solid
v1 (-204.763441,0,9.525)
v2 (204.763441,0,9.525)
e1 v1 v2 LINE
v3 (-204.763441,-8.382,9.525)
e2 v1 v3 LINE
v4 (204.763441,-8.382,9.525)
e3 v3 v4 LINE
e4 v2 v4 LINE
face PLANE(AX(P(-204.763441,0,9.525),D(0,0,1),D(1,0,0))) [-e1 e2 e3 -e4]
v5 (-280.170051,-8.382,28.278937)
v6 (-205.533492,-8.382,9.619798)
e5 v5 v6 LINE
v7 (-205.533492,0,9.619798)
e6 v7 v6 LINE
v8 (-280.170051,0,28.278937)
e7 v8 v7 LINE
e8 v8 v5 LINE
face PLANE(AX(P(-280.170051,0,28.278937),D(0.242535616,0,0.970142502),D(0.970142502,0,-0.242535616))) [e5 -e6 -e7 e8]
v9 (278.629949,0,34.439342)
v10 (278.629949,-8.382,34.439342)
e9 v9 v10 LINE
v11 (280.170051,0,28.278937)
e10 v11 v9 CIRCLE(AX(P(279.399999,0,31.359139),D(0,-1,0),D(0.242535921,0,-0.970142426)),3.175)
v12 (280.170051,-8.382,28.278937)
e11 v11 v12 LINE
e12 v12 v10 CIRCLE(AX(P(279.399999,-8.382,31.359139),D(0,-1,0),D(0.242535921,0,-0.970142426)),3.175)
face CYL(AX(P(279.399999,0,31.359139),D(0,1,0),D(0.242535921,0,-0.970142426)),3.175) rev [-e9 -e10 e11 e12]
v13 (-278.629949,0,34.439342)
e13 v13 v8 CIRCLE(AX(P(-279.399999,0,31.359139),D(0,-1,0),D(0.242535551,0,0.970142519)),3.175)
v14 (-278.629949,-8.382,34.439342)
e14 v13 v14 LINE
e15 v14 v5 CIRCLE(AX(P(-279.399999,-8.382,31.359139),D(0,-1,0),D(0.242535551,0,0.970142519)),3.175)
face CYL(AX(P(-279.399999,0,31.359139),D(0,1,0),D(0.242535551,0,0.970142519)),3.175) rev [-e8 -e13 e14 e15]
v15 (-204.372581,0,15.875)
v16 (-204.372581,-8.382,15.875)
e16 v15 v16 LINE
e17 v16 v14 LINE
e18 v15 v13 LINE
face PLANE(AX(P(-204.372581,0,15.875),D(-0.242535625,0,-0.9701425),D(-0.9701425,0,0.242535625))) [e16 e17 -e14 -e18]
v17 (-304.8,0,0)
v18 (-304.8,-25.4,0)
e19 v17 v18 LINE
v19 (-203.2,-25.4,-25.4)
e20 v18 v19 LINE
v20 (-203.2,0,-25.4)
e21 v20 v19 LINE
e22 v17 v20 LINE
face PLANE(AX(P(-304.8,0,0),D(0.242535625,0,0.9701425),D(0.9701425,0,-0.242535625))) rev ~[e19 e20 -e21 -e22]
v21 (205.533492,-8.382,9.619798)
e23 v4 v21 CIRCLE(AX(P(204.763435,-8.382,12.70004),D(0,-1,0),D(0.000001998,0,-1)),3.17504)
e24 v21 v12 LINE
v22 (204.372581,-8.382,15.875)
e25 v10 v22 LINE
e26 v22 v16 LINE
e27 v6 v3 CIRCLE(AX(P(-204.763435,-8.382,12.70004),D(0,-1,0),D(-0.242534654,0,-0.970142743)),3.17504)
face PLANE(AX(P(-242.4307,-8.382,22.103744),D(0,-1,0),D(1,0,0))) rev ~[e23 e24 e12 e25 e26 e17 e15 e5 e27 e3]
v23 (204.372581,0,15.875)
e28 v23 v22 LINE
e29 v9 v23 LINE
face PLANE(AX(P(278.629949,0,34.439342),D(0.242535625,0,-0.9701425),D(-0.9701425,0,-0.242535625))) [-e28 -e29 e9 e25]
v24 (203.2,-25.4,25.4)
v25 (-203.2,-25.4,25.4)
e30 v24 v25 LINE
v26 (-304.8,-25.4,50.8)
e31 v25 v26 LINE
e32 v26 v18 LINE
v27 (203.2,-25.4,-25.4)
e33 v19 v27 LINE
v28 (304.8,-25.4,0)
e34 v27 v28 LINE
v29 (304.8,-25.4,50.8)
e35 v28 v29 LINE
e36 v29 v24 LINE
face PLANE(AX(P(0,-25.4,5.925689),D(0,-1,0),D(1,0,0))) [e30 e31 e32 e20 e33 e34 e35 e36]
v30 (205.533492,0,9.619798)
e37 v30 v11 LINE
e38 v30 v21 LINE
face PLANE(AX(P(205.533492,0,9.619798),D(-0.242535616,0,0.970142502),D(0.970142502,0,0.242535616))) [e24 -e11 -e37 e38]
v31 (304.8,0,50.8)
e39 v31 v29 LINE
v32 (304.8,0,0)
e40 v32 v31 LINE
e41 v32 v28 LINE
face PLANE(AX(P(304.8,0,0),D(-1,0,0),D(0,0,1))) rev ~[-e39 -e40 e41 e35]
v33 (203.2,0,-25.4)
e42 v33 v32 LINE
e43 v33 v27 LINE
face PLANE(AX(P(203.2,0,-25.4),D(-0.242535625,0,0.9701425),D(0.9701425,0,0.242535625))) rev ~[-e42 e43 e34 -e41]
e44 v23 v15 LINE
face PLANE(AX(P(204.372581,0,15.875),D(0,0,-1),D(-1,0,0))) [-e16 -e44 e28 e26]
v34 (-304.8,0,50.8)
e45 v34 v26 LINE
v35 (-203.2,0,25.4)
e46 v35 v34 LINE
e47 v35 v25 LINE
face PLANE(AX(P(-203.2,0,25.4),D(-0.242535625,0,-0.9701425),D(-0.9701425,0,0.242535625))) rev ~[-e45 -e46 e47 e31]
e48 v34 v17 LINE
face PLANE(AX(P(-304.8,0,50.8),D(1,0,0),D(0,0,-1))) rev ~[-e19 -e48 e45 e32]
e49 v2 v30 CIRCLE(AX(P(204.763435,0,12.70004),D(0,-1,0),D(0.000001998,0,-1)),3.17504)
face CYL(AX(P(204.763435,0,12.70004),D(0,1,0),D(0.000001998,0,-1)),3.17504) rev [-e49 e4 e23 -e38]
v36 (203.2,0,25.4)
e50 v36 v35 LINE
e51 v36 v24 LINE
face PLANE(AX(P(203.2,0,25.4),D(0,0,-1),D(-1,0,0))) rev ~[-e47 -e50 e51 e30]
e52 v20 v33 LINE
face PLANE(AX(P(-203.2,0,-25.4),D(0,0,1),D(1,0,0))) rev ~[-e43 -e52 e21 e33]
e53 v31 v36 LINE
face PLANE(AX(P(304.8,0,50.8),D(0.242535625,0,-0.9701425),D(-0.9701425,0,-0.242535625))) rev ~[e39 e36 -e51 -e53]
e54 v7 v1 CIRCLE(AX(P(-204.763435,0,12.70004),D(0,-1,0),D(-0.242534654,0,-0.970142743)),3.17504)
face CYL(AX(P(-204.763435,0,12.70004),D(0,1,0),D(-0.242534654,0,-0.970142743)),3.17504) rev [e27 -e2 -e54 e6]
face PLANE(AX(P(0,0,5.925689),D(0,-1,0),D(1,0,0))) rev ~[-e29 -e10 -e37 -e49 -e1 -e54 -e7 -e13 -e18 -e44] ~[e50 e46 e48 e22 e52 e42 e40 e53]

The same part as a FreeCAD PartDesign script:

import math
import FreeCAD as App
import Part
import Sketcher
from FreeCAD import Vector
Q = App.Units.Quantity

doc = App.newDocument("Part")
params = doc.addObject("Spreadsheet::Sheet", "Params")
for row, (alias, value) in enumerate([
    ("sketch1_width", "16 in"),
    ("sketch1_height", "2 in"),
    ("pad1_length", "1 in"),
    ("sketch2_radius", "0.125 in"),
    ("sketch2_radius2", "0.125 in"),
    ("pocket1_length", "0.33 in"),
], start=1):
    params.set(f"A{row}", alias)
    params.set(f"B{row}", "=" + value)
    params.setAlias(f"B{row}", alias)

body = doc.addObject("PartDesign::Body", "Body")

# Sketch on XZ plane
sketch1 = doc.addObject("Sketcher::SketchObject", "Sketch")
body.addObject(sketch1)
sketch1.AttachmentSupport = (doc.XZ_Plane, [""])
sketch1.MapMode = "FlatFace"
sketch1.addGeometry([
    Part.LineSegment(Vector(305, 0, 0), Vector(305, 51, 0)),  # 0
    Part.LineSegment(Vector(305, 51, 0), Vector(203, 25, 0)),  # 1
    Part.LineSegment(Vector(203, 25, 0), Vector(-203, 25, 0)),  # 2
    Part.LineSegment(Vector(-203, 25, 0), Vector(-305, 51, 0)),  # 3
    Part.LineSegment(Vector(-305, 51, 0), Vector(-305, 0, 0)),  # 4
    Part.LineSegment(Vector(-305, 0, 0), Vector(-203, -25, 0)),  # 5
    Part.LineSegment(Vector(-203, -25, 0), Vector(203, -25, 0)),  # 6
    Part.LineSegment(Vector(203, -25, 0), Vector(305, 0, 0)),  # 7
], False)
sketch1.addConstraint([
    Sketcher.Constraint("Coincident", 0, 2, 1, 1),
    Sketcher.Constraint("Coincident", 1, 2, 2, 1),
    Sketcher.Constraint("Coincident", 2, 2, 3, 1),
    Sketcher.Constraint("Coincident", 3, 2, 4, 1),
    Sketcher.Constraint("Coincident", 4, 2, 5, 1),
    Sketcher.Constraint("Coincident", 5, 2, 6, 1),
    Sketcher.Constraint("Coincident", 6, 2, 7, 1),
    Sketcher.Constraint("Coincident", 7, 2, 0, 1),
    Sketcher.Constraint("Vertical", 0),
    Sketcher.Constraint("Horizontal", 2),
    Sketcher.Constraint("Vertical", 4),
    Sketcher.Constraint("Horizontal", 6),
    Sketcher.Constraint("Symmetric", 1, 2, 5, 2, -1, 1),
    Sketcher.Constraint("Symmetric", 4, 2, 7, 2, -1, 1),
    Sketcher.Constraint("PointOnObject", 4, 2, -1),
    Sketcher.Constraint("Parallel", 3, 5),
    Sketcher.Constraint("Parallel", 1, 7),
    Sketcher.Constraint("Horizontal", 0, 2, 3, 2),
    Sketcher.Constraint("Vertical", 2, 2, 5, 2),
    Sketcher.Constraint("DistanceX", 2, 2, 2, 1, Q("16 in")),
    Sketcher.Constraint("DistanceY", 0, 1, 0, 2, Q("2 in")),
    Sketcher.Constraint("DistanceX", -1, 1, 0, 2, Q("12 in")),
])
sketch1.setExpression("Constraints[19]", "Params.sketch1_width")
sketch1.setExpression("Constraints[20]", "Params.sketch1_height")
pad1 = doc.addObject("PartDesign::Pad", "Pad")
body.addObject(pad1)
pad1.Profile = sketch1
pad1.setExpression("Length", "Params.pad1_length")

# Sketch on XZ plane
sketch2 = doc.addObject("Sketcher::SketchObject", "Sketch001")
body.addObject(sketch2)
sketch2.AttachmentSupport = (doc.XZ_Plane, [""])
sketch2.MapMode = "FlatFace"
sketch2.addGeometry([
    Part.LineSegment(Vector(-280.170051, 28.278937, 0), Vector(-205.533492, 9.619798, 0)),  # 0
    Part.ArcOfCircle(Part.Circle(Vector(-204.763435, 12.70004, 0), Vector(0, 0, 1), 3.17504), math.radians(-104.036186), math.radians(-90.000114)),  # 1
    Part.LineSegment(Vector(-204.763441, 9.525, 0), Vector(204.763441, 9.525, 0)),  # 2
    Part.ArcOfCircle(Part.Circle(Vector(204.763435, 12.70004, 0), Vector(0, 0, 1), 3.17504), math.radians(-89.999886), math.radians(-75.963814)),  # 3
    Part.LineSegment(Vector(205.533492, 9.619798, 0), Vector(280.170051, 28.278937, 0)),  # 4
    Part.ArcOfCircle(Part.Circle(Vector(279.399999, 31.359139, 0), Vector(0, 0, 1), 3.175), math.radians(-75.963739), math.radians(104.036239)),  # 5
    Part.LineSegment(Vector(278.629949, 34.439342, 0), Vector(204.372581, 15.875, 0)),  # 6
    Part.LineSegment(Vector(204.372581, 15.875, 0), Vector(-204.372581, 15.875, 0)),  # 7
    Part.LineSegment(Vector(-204.372581, 15.875, 0), Vector(-278.629949, 34.439342, 0)),  # 8
    Part.ArcOfCircle(Part.Circle(Vector(-279.399999, 31.359139, 0), Vector(0, 0, 1), 3.175), math.radians(75.963761), math.radians(255.963739)),  # 9
], False)
sketch2.addConstraint([
    Sketcher.Constraint("Coincident", 0, 2, 1, 1),
    Sketcher.Constraint("Coincident", 1, 2, 2, 1),
    Sketcher.Constraint("Coincident", 2, 2, 3, 1),
    Sketcher.Constraint("Coincident", 3, 2, 4, 1),
    Sketcher.Constraint("Coincident", 4, 2, 5, 1),
    Sketcher.Constraint("Coincident", 5, 2, 6, 1),
    Sketcher.Constraint("Coincident", 6, 2, 7, 1),
    Sketcher.Constraint("Coincident", 7, 2, 8, 1),
    Sketcher.Constraint("Coincident", 8, 2, 9, 1),
    Sketcher.Constraint("Coincident", 9, 2, 0, 1),
    Sketcher.Constraint("Horizontal", 2),
    Sketcher.Constraint("Horizontal", 7),
    Sketcher.Constraint("DistanceX", -1, 1, 5, 3, Q("11 in")),
    Sketcher.Constraint("DistanceX", 9, 3, -1, 1, Q("11 in")),
    Sketcher.Constraint("Radius", 5, Q("0.125 in")),
    Sketcher.Constraint("Radius", 9, Q("0.125 in")),
    Sketcher.Constraint("DistanceY", 2, 2, 6, 2, Q("0.25 in")),
    Sketcher.Constraint("DistanceY", -1, 1, 1, 2, Q("0.375 in")),
    Sketcher.Constraint("Radius", 1, 3.17504),
    Sketcher.Constraint("Radius", 3, 3.17504),
    Sketcher.Constraint("DistanceX", 2, 1, 2, 2, 409.526882),
    Sketcher.Constraint("DistanceX", 7, 2, 7, 1, 408.745162),
    Sketcher.Constraint("DistanceY", 3, 3, 5, 3, 18.659099),
    Sketcher.Constraint("DistanceY", 1, 3, 9, 3, 18.659099),
    Sketcher.Constraint("DistanceY", 3, 3, 5, 2, 21.739302),
    Sketcher.Constraint("DistanceY", 1, 3, 8, 2, 21.739302),
    Sketcher.Constraint("DistanceX", 0, 2, -1, 1, 205.533492),
    Sketcher.Constraint("DistanceX", 1, 2, -1, 1, 204.763441),
    Sketcher.Constraint("DistanceX", -1, 1, 4, 2, 280.170051),
    Sketcher.Constraint("DistanceX", -1, 1, 6, 2, 204.372581),
    Sketcher.Constraint("DistanceX", 9, 2, -1, 1, 280.170051),
    Sketcher.Constraint("DistanceX", 1, 3, 3, 3, 409.526869),
    Sketcher.Constraint("DistanceY", 0, 2, 9, 3, 21.739341),
    Sketcher.Constraint("DistanceX", 2, 2, 3, 2, 0.770051),
])
sketch2.setExpression("Constraints[14]", "Params.sketch2_radius")
sketch2.setExpression("Constraints[15]", "Params.sketch2_radius2")
pocket1 = doc.addObject("PartDesign::Pocket", "Pocket")
body.addObject(pocket1)
pocket1.Profile = sketch2
pocket1.setExpression("Length", "Params.pocket1_length")
pocket1.Reversed = True

doc.recompute()
